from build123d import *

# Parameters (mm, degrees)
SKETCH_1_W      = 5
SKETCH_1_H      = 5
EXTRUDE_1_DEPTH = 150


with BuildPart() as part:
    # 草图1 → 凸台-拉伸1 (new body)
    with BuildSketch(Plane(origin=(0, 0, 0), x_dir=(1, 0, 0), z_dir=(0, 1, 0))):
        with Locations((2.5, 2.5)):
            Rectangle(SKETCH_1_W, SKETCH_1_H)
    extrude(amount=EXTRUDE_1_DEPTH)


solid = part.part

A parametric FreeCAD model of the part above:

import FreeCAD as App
import Part
import Sketcher

V = App.Vector

doc = App.newDocument("Part")
body = doc.addObject("PartDesign::Body", "Body")

# Sketch on XZ plane
sketch1 = body.newObject("Sketcher::SketchObject", "Sketch")
sketch1.AttachmentSupport = (doc.getObject("XZ_Plane"), [""])
sketch1.MapMode = "FlatFace"
sketch1.addGeometry([
    Part.LineSegment(V(0, -5, 0), V(0, 0, 0)),
    Part.LineSegment(V(0, 0, 0), V(5, 0, 0)),
    Part.LineSegment(V(5, 0, 0), V(5, -5, 0)),
    Part.LineSegment(V(5, -5, 0), V(0, -5, 0)),
], False)
sketch1.addConstraint([
    Sketcher.Constraint("Coincident", 0, 2, 1, 1),
    Sketcher.Constraint("Coincident", 1, 2, 2, 1),
    Sketcher.Constraint("Coincident", 2, 2, 3, 1),
    Sketcher.Constraint("Coincident", 3, 2, 0, 1),
    Sketcher.Constraint("Vertical", 0),
    Sketcher.Constraint("Horizontal", 1),
    Sketcher.Constraint("Vertical", 2),
    Sketcher.Constraint("Horizontal", 3),
    Sketcher.Constraint("Coincident", 0, 2, -1, 1),
    Sketcher.Constraint("Equal", 3, 0),
    Sketcher.Constraint("DistanceX", 1, 1, 1, 2, 5.0),
])
pad1 = body.newObject("PartDesign::Pad", "Pad")
pad1.Profile = sketch1
pad1.Length = 150
pad1.Reversed = True

doc.recompute()
